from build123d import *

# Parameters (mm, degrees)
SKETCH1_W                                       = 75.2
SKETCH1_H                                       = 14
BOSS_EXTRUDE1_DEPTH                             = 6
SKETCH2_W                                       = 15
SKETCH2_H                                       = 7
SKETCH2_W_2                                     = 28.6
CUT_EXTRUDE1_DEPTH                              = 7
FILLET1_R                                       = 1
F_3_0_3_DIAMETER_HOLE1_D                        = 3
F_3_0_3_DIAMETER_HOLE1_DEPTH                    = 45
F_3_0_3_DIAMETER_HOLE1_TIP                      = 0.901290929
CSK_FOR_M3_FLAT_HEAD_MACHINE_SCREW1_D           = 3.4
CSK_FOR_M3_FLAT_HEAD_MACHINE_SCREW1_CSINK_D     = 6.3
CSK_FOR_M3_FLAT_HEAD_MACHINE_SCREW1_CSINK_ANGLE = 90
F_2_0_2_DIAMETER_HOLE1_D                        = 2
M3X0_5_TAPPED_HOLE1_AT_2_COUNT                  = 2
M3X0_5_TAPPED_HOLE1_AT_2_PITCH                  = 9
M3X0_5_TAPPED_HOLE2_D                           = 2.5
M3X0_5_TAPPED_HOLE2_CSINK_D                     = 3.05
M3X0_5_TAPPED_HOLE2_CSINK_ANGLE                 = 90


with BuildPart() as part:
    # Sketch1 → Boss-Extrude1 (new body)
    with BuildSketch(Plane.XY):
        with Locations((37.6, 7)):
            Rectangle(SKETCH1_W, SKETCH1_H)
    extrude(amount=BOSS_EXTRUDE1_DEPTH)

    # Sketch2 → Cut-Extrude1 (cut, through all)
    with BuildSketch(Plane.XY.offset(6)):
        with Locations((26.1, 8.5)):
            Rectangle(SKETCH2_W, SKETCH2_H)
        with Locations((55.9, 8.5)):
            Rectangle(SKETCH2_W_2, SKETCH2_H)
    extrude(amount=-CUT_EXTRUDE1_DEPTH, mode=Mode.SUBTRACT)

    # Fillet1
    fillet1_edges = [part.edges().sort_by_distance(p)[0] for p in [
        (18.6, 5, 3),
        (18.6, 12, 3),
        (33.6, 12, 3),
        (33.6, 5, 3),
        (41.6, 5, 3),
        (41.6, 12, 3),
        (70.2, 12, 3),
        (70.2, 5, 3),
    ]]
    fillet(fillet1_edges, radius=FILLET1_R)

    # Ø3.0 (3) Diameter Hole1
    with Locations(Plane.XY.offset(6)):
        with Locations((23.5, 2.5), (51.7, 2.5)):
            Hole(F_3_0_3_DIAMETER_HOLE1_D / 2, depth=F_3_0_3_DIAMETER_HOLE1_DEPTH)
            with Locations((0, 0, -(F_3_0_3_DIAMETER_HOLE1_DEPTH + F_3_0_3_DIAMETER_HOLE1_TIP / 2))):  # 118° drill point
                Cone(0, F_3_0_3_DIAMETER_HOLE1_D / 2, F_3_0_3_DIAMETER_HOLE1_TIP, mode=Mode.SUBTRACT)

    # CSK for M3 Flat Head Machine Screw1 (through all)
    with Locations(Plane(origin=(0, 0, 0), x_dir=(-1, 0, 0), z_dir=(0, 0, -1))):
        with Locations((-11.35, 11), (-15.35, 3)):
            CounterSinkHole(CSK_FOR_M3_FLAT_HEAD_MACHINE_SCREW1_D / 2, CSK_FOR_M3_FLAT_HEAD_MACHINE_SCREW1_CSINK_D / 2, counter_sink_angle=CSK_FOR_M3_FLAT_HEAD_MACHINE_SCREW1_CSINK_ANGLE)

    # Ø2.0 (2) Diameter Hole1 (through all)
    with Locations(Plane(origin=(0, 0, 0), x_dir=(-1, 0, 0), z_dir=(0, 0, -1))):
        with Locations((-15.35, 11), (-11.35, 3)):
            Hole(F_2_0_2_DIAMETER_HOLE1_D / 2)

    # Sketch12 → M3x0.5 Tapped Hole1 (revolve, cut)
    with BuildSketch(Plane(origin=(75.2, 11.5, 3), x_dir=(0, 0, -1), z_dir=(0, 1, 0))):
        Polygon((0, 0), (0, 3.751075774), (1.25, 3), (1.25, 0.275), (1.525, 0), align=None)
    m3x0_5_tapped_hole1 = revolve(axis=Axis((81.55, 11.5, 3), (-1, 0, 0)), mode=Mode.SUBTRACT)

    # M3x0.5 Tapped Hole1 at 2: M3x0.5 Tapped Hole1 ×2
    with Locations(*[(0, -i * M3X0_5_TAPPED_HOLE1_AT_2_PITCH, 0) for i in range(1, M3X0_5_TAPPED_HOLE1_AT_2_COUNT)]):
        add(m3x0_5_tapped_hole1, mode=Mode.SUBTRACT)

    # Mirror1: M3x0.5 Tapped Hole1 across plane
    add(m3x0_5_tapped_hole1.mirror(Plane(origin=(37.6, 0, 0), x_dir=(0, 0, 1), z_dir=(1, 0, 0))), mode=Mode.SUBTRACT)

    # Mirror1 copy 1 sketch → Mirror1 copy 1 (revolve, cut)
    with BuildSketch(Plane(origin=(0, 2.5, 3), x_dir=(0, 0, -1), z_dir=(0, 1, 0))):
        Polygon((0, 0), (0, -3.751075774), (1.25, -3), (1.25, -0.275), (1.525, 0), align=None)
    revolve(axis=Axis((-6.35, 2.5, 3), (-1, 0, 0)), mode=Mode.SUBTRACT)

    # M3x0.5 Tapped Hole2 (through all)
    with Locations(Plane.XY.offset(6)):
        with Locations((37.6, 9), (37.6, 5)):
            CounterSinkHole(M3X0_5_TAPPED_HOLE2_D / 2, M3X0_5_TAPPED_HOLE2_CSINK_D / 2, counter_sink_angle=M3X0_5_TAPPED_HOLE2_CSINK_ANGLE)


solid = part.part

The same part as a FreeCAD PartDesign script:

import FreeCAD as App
import Part
import Sketcher

V = App.Vector
Q = App.Units.Quantity


def edges_at(feature, points):
    """Names of the edges that pass closest to the given points."""
    edges = feature.Shape.Edges
    near = lambda p: min(range(len(edges)), key=lambda i: edges[i].distToShape(Part.Vertex(*p))[0])
    return sorted({f"Edge{near(p) + 1}" for p in points})

doc = App.newDocument("Part")
body = doc.addObject("PartDesign::Body", "Body")

# Sketch on XY plane
sketch1 = body.newObject("Sketcher::SketchObject", "Sketch")
sketch1.AttachmentSupport = (doc.getObject("XY_Plane"), [""])
sketch1.MapMode = "FlatFace"
sketch1.addGeometry(Part.LineSegment(V(0, 14, 0), V(0, 0, 0)), False)
sketch1.addGeometry(Part.LineSegment(V(0, 0, 0), V(75, 0, 0)), False)
sketch1.addGeometry(Part.LineSegment(V(75, 0, 0), V(75, 14, 0)), False)
sketch1.addGeometry(Part.LineSegment(V(75, 14, 0), V(0, 14, 0)), False)
sketch1.addConstraint(Sketcher.Constraint("Coincident", 0, 2, 1, 1))
sketch1.addConstraint(Sketcher.Constraint("Coincident", 1, 2, 2, 1))
sketch1.addConstraint(Sketcher.Constraint("Coincident", 2, 2, 3, 1))
sketch1.addConstraint(Sketcher.Constraint("Coincident", 3, 2, 0, 1))
sketch1.addConstraint(Sketcher.Constraint("Vertical", 0))
sketch1.addConstraint(Sketcher.Constraint("Horizontal", 1))
sketch1.addConstraint(Sketcher.Constraint("Vertical", 2))
sketch1.addConstraint(Sketcher.Constraint("Horizontal", 3))
sketch1.addConstraint(Sketcher.Constraint("Coincident", 0, 2, -1, 1))
sketch1.addConstraint(Sketcher.Constraint("DistanceY", 0, 2, 0, 1, 14.0))
sketch1.addConstraint(Sketcher.Constraint("DistanceX", 1, 1, 1, 2, 75.2))
pad1 = body.newObject("PartDesign::Pad", "Pad")
pad1.Profile = sketch1
pad1.Length = 6

# Sketch on XY plane
sketch2 = body.newObject("Sketcher::SketchObject", "Sketch001")
sketch2.AttachmentSupport = (doc.getObject("XY_Plane"), [""])
sketch2.MapMode = "FlatFace"
sketch2.AttachmentOffset = App.Placement(V(0, 0, 6), App.Rotation())
sketch2.addGeometry(Part.LineSegment(V(19, 12, 0), V(19, 5, 0)), False)
sketch2.addGeometry(Part.LineSegment(V(19, 5, 0), V(34, 5, 0)), False)
sketch2.addGeometry(Part.LineSegment(V(34, 5, 0), V(34, 12, 0)), False)
sketch2.addGeometry(Part.LineSegment(V(34, 12, 0), V(19, 12, 0)), False)
sketch2.addGeometry(Part.LineSegment(V(42, 12, 0), V(42, 5, 0)), False)
sketch2.addGeometry(Part.LineSegment(V(42, 5, 0), V(70, 5, 0)), False)
sketch2.addGeometry(Part.LineSegment(V(70, 5, 0), V(70, 12, 0)), False)
sketch2.addGeometry(Part.LineSegment(V(70, 12, 0), V(42, 12, 0)), False)
sketch2.addConstraint(Sketcher.Constraint("Coincident", 0, 2, 1, 1))
sketch2.addConstraint(Sketcher.Constraint("Coincident", 1, 2, 2, 1))
sketch2.addConstraint(Sketcher.Constraint("Coincident", 2, 2, 3, 1))
sketch2.addConstraint(Sketcher.Constraint("Coincident", 3, 2, 0, 1))
sketch2.addConstraint(Sketcher.Constraint("Coincident", 4, 2, 5, 1))
sketch2.addConstraint(Sketcher.Constraint("Coincident", 5, 2, 6, 1))
sketch2.addConstraint(Sketcher.Constraint("Coincident", 6, 2, 7, 1))
sketch2.addConstraint(Sketcher.Constraint("Coincident", 7, 2, 4, 1))
sketch2.addConstraint(Sketcher.Constraint("Vertical", 0))
sketch2.addConstraint(Sketcher.Constraint("Horizontal", 1))
sketch2.addConstraint(Sketcher.Constraint("Vertical", 2))
sketch2.addConstraint(Sketcher.Constraint("Horizontal", 3))
sketch2.addConstraint(Sketcher.Constraint("Vertical", 4))
sketch2.addConstraint(Sketcher.Constraint("Horizontal", 5))
sketch2.addConstraint(Sketcher.Constraint("Vertical", 6))
sketch2.addConstraint(Sketcher.Constraint("Horizontal", 7))
sketch2.addConstraint(Sketcher.Constraint("Horizontal", 1, 2, 4, 2))
sketch2.addConstraint(Sketcher.Constraint("Horizontal", 3, 2, 6, 2))
sketch2.addConstraint(Sketcher.Constraint("DistanceX", 1, 1, 1, 2, 15.0))
sketch2.addConstraint(Sketcher.Constraint("DistanceY", 0, 2, 0, 1, 7.0))
sketch2.addConstraint(Sketcher.Constraint("DistanceX", 5, 1, 5, 2, 28.6))
sketch2.addConstraint(Sketcher.Constraint("DistanceY", -1, 1, 0, 2, 5.0))
sketch2.addConstraint(Sketcher.Constraint("DistanceX", 1, 2, 4, 2, 8.0))
sketch2.addConstraint(Sketcher.Constraint("DistanceX", -1, 1, 0, 2, 18.6))
pocket1 = body.newObject("PartDesign::Pocket", "Pocket")
pocket1.Profile = sketch2
pocket1.Type = "ThroughAll"
doc.recompute()

fillet = body.newObject("PartDesign::Fillet", "Fillet")
fillet.Base = (pocket1, edges_at(pocket1, [
    (18.6, 5, 3),
    (18.6, 12, 3),
    (33.6, 12, 3),
    (33.6, 5, 3),
    (41.6, 5, 3),
    (41.6, 12, 3),
    (70.2, 12, 3),
    (70.2, 5, 3),
]))
fillet.Radius = 1

# Sketch on XY plane
sketch3 = body.newObject("Sketcher::SketchObject", "Sketch002")
sketch3.AttachmentSupport = (doc.getObject("XY_Plane"), [""])
sketch3.MapMode = "FlatFace"
sketch3.AttachmentOffset = App.Placement(V(0, 0, 6), App.Rotation())
sketch3.addGeometry(Part.Circle(V(23.5, 2.5, 0), V(0, 0, 1), 1.5), False)
sketch3.addGeometry(Part.Circle(V(51.7, 2.5, 0), V(0, 0, 1), 1.5), False)
sketch3.addConstraint(Sketcher.Constraint("Equal", 0, 1))
sketch3.addConstraint(Sketcher.Constraint("Horizontal", 0, 3, 1, 3))
sketch3.addConstraint(Sketcher.Constraint("Diameter", 0, 3.0))
sketch3.addConstraint(Sketcher.Constraint("DistanceX", -1, 1, 0, 3, 23.5))
sketch3.addConstraint(Sketcher.Constraint("DistanceY", -1, 1, 0, 3, 2.5))
sketch3.addConstraint(Sketcher.Constraint("DistanceX", -1, 1, 1, 3, 51.7))
doc.recompute()
hole = body.newObject("PartDesign::Hole", "Hole")
hole.Profile = sketch3
hole.ThreadType = "None"
hole.Diameter = 3
hole.DepthType = "Dimension"
hole.Depth = 45
hole.DrillPoint = "Angled"
hole.DrillPointAngle = 118

# Sketch on XY plane
sketch4 = body.newObject("Sketcher::SketchObject", "Sketch003")
sketch4.AttachmentSupport = (doc.getObject("XY_Plane"), [""])
sketch4.MapMode = "FlatFace"
sketch4.addGeometry(Part.Circle(V(11.3, 11, 0), V(0, 0, 1), 1.7), False)
sketch4.addGeometry(Part.Circle(V(15.3, 3, 0), V(0, 0, 1), 1.7), False)
sketch4.addConstraint(Sketcher.Constraint("Equal", 0, 1))
sketch4.addConstraint(Sketcher.Constraint("Diameter", 0, 3.4))
sketch4.addConstraint(Sketcher.Constraint("DistanceY", -1, 1, 0, 3, 11.0))
sketch4.addConstraint(Sketcher.Constraint("DistanceY", -1, 1, 1, 3, 3.0))
sketch4.addConstraint(Sketcher.Constraint("DistanceX", 0, 3, 1, 3, 4.0))
sketch4.addConstraint(Sketcher.Constraint("DistanceX", -1, 1, 0, 3, 11.35))
doc.recompute()
hole2 = body.newObject("PartDesign::Hole", "Hole001")
hole2.Profile = sketch4
hole2.ThreadType = "None"
hole2.Diameter = 3.4
hole2.DepthType = "ThroughAll"
hole2.HoleCutType = "Countersink"
hole2.HoleCutDiameter = 6.3
hole2.HoleCutCountersinkAngle = 90
hole2.Reversed = True

# Sketch on XY plane
sketch5 = body.newObject("Sketcher::SketchObject", "Sketch004")
sketch5.AttachmentSupport = (doc.getObject("XY_Plane"), [""])
sketch5.MapMode = "FlatFace"
sketch5.addGeometry(Part.Circle(V(15.3, 11, 0), V(0, 0, 1), 1), False)
sketch5.addGeometry(Part.Circle(V(11.3, 3, 0), V(0, 0, 1), 1), False)
sketch5.addConstraint(Sketcher.Constraint("Equal", 0, 1))
sketch5.addConstraint(Sketcher.Constraint("Diameter", 0, 2.0))
sketch5.addConstraint(Sketcher.Constraint("DistanceY", -1, 1, 0, 3, 11.0))
sketch5.addConstraint(Sketcher.Constraint("DistanceY", -1, 1, 1, 3, 3.0))
sketch5.addConstraint(Sketcher.Constraint("DistanceX", 1, 3, 0, 3, 4.0))
sketch5.addConstraint(Sketcher.Constraint("DistanceX", -1, 1, 0, 3, 15.35))
doc.recompute()
hole3 = body.newObject("PartDesign::Hole", "Hole002")
hole3.Profile = sketch5
hole3.ThreadType = "None"
hole3.Diameter = 2
hole3.DepthType = "ThroughAll"
hole3.Reversed = True

# Sketch on XZ plane
sketch6 = body.newObject("Sketcher::SketchObject", "Sketch005")
sketch6.AttachmentSupport = (doc.getObject("XZ_Plane"), [""])
sketch6.MapMode = "FlatFace"
sketch6.AttachmentOffset = App.Placement(V(0, 0, -11.5), App.Rotation())
sketch6.addGeometry(Part.LineSegment(V(71.45, 3, 0), V(75.2, 3, 0)), False)
sketch6.addGeometry(Part.LineSegment(V(75.2, 3, 0), V(75.2, 1.48, 0)), False)
sketch6.addGeometry(Part.LineSegment(V(75.2, 1.48, 0), V(74.92, 1.75, 0)), False)
sketch6.addGeometry(Part.LineSegment(V(74.92, 1.75, 0), V(72.2, 1.75, 0)), False)
sketch6.addGeometry(Part.LineSegment(V(72.2, 1.75, 0), V(71.45, 3, 0)), False)
sketch6.addGeometry(Part.LineSegment(V(75.2, 3, 0), V(71.45, 3, 0)), True)  # axis
sketch6.addConstraint(Sketcher.Constraint("Coincident", 0, 2, 1, 1))
sketch6.addConstraint(Sketcher.Constraint("Coincident", 1, 2, 2, 1))
sketch6.addConstraint(Sketcher.Constraint("Coincident", 2, 2, 3, 1))
sketch6.addConstraint(Sketcher.Constraint("Coincident", 3, 2, 4, 1))
sketch6.addConstraint(Sketcher.Constraint("Coincident", 4, 2, 0, 1))
sketch6.addConstraint(Sketcher.Constraint("Horizontal", 0))
sketch6.addConstraint(Sketcher.Constraint("Vertical", 1))
sketch6.addConstraint(Sketcher.Constraint("Horizontal", 3))
sketch6.addConstraint(Sketcher.Constraint("Horizontal", 5))
sketch6.addConstraint(Sketcher.Constraint("Coincident", 5, 1, 0, 2))
sketch6.addConstraint(Sketcher.Constraint("Equal", 0, 5))
sketch6.addConstraint(Sketcher.Constraint("Angle", 2, Q("135 deg")))
sketch6.addConstraint(Sketcher.Constraint("Angle", 4, Q("121 deg")))
sketch6.addConstraint(Sketcher.Constraint("DistanceY", -1, 1, 0, 2, 3.0))
sketch6.addConstraint(Sketcher.Constraint("DistanceX", 3, 2, 1, 2, 3.0))
sketch6.addConstraint(Sketcher.Constraint("DistanceX", -1, 1, 0, 2, 75.2))
sketch6.addConstraint(Sketcher.Constraint("DistanceX", 3, 2, 3, 1, 2.725))
sketch6.addConstraint(Sketcher.Constraint("DistanceY", 1, 2, 1, 1, 1.525))
groove = body.newObject("PartDesign::Groove", "Groove")
groove.Profile = sketch6
groove.ReferenceAxis = (sketch6, ["Axis0"])
groove.Angle = 360
doc.recompute()

linearpattern = body.newObject("PartDesign::LinearPattern", "LinearPattern")
linearpattern.Originals = [groove]
linearpattern.Direction = (doc.getObject("Y_Axis"), [""])
linearpattern.Mode = "offset"
linearpattern.Offset = 9
linearpattern.Occurrences = 2
linearpattern.Reversed = True
body.Tip = linearpattern
doc.recompute()

datumplane = body.newObject("PartDesign::Plane", "DatumPlane")
datumplane.AttachmentSupport = (doc.getObject("YZ_Plane"), [""])
datumplane.MapMode = "FlatFace"
datumplane.AttachmentOffset = App.Placement(V(0, 0, 37.6), App.Rotation())
mirrored = body.newObject("PartDesign::Mirrored", "Mirrored")
mirrored.Originals = [groove]
mirrored.MirrorPlane = (datumplane, [""])
body.Tip = mirrored

# Sketch on XZ plane
sketch7 = body.newObject("Sketcher::SketchObject", "Sketch006")
sketch7.AttachmentSupport = (doc.getObject("XZ_Plane"), [""])
sketch7.MapMode = "FlatFace"
sketch7.AttachmentOffset = App.Placement(V(0, 0, -2.5), App.Rotation())
sketch7.addGeometry(Part.LineSegment(V(0, 3, 0), V(3.75, 3, 0)), False)
sketch7.addGeometry(Part.LineSegment(V(3.75, 3, 0), V(3, 1.75, 0)), False)
sketch7.addGeometry(Part.LineSegment(V(3, 1.75, 0), V(0.28, 1.75, 0)), False)
sketch7.addGeometry(Part.LineSegment(V(0.28, 1.75, 0), V(0, 1.48, 0)), False)
sketch7.addGeometry(Part.LineSegment(V(0, 1.48, 0), V(0, 3, 0)), False)
sketch7.addGeometry(Part.LineSegment(V(3.75, 3, 0), V(0, 3, 0)), True)  # axis
sketch7.addConstraint(Sketcher.Constraint("Coincident", 0, 2, 1, 1))
sketch7.addConstraint(Sketcher.Constraint("Coincident", 1, 2, 2, 1))
sketch7.addConstraint(Sketcher.Constraint("Coincident", 2, 2, 3, 1))
sketch7.addConstraint(Sketcher.Constraint("Coincident", 3, 2, 4, 1))
sketch7.addConstraint(Sketcher.Constraint("Coincident", 4, 2, 0, 1))
sketch7.addConstraint(Sketcher.Constraint("Horizontal", 0))
sketch7.addConstraint(Sketcher.Constraint("Horizontal", 2))
sketch7.addConstraint(Sketcher.Constraint("Vertical", 4))
sketch7.addConstraint(Sketcher.Constraint("Horizontal", 5))
sketch7.addConstraint(Sketcher.Constraint("Coincident", 5, 1, 0, 2))
sketch7.addConstraint(Sketcher.Constraint("PointOnObject", 3, 2, -2))
sketch7.addConstraint(Sketcher.Constraint("PointOnObject", 5, 2, -2))
sketch7.addConstraint(Sketcher.Constraint("Angle", 1, Q("-121 deg")))
sketch7.addConstraint(Sketcher.Constraint("Angle", 3, Q("-135 deg")))
sketch7.addConstraint(Sketcher.Constraint("DistanceY", -1, 1, 0, 2, 3.0))
sketch7.addConstraint(Sketcher.Constraint("DistanceX", -1, 1, 1, 2, 3.0))
sketch7.addConstraint(Sketcher.Constraint("DistanceX", 2, 2, 2, 1, 2.725))
sketch7.addConstraint(Sketcher.Constraint("DistanceY", 4, 1, 4, 2, 1.525))
groove2 = body.newObject("PartDesign::Groove", "Groove001")
groove2.Profile = sketch7
groove2.ReferenceAxis = (sketch7, ["Axis0"])
groove2.Angle = 360

# Sketch on XY plane
sketch8 = body.newObject("Sketcher::SketchObject", "Sketch007")
sketch8.AttachmentSupport = (doc.getObject("XY_Plane"), [""])
sketch8.MapMode = "FlatFace"
sketch8.AttachmentOffset = App.Placement(V(0, 0, 6), App.Rotation())
sketch8.addGeometry(Part.Circle(V(37.6, 9, 0), V(0, 0, 1), 1.2), False)
sketch8.addGeometry(Part.Circle(V(37.6, 5, 0), V(0, 0, 1), 1.2), False)
sketch8.addConstraint(Sketcher.Constraint("Equal", 0, 1))
sketch8.addConstraint(Sketcher.Constraint("Vertical", 0, 3, 1, 3))
sketch8.addConstraint(Sketcher.Constraint("Diameter", 0, 2.5))
sketch8.addConstraint(Sketcher.Constraint("DistanceY", -1, 1, 0, 3, 9.0))
sketch8.addConstraint(Sketcher.Constraint("DistanceY", -1, 1, 1, 3, 5.0))
sketch8.addConstraint(Sketcher.Constraint("DistanceX", -1, 1, 0, 3, 37.6))
doc.recompute()
hole4 = body.newObject("PartDesign::Hole", "Hole003")
hole4.Profile = sketch8
hole4.ThreadType = "None"
hole4.Diameter = 2.5
hole4.DepthType = "ThroughAll"
hole4.HoleCutType = "Countersink"
hole4.HoleCutDiameter = 3.05
hole4.HoleCutCountersinkAngle = 90

doc.recompute()
